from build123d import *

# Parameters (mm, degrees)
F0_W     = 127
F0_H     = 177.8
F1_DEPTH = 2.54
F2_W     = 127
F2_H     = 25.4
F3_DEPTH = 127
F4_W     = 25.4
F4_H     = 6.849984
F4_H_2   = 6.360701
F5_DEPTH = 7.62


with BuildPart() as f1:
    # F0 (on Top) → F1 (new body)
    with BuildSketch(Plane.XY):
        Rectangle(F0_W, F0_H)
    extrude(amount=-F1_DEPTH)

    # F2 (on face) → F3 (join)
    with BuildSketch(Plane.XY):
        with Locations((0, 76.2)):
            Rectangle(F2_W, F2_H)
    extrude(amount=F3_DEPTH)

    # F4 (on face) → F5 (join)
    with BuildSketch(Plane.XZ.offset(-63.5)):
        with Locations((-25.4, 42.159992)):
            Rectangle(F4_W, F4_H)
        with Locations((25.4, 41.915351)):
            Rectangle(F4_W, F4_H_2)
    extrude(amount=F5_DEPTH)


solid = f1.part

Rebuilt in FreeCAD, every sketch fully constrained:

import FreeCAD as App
import Part
import Sketcher
Q = App.Units.Quantity


def add_polygon(sketch, points):
    """Adds a closed chain of lines whose ends are joined by coincident constraints."""
    first, n = sketch.GeometryCount, len(points)
    for a, b in zip(points, points[1:] + points[:1]):
        sketch.addGeometry(Part.LineSegment(App.Vector(*a, 0), App.Vector(*b, 0)), False)
    for i in range(n):
        sketch.addConstraint(Sketcher.Constraint("Coincident", first + i, 2, first + (i + 1) % n, 1))

doc = App.newDocument("Part")
body = doc.addObject("PartDesign::Body", "Body")

# Sketch on XY plane
sketch1 = body.newObject("Sketcher::SketchObject", "Sketch")
sketch1.AttachmentSupport = (doc.getObject("XY_Plane"), [""])
sketch1.MapMode = "FlatFace"
add_polygon(sketch1, [(-64, 89), (-64, -89), (64, -89), (64, 89)])  # lines 0-3
sketch1.addConstraint(Sketcher.Constraint("Vertical", 0))
sketch1.addConstraint(Sketcher.Constraint("Horizontal", 1))
sketch1.addConstraint(Sketcher.Constraint("Vertical", 2))
sketch1.addConstraint(Sketcher.Constraint("Horizontal", 3))
sketch1.addConstraint(Sketcher.Constraint("Symmetric", 0, 2, 2, 2, -1, 1))
sketch1.addConstraint(Sketcher.Constraint("DistanceX", 1, 1, 1, 2, Q("5 in")))
sketch1.addConstraint(Sketcher.Constraint("DistanceY", 0, 2, 0, 1, Q("7 in")))
pad1 = body.newObject("PartDesign::Pad", "Pad")
pad1.Profile = sketch1
pad1.Length = Q("0.1 in")
pad1.Reversed = True

# Sketch on XY plane
sketch2 = body.newObject("Sketcher::SketchObject", "Sketch001")
sketch2.AttachmentSupport = (doc.getObject("XY_Plane"), [""])
sketch2.MapMode = "FlatFace"
add_polygon(sketch2, [(-64, 89), (-64, 64), (64, 64), (64, 89)])  # lines 0-3
sketch2.addConstraint(Sketcher.Constraint("Vertical", 0))
sketch2.addConstraint(Sketcher.Constraint("Horizontal", 1))
sketch2.addConstraint(Sketcher.Constraint("Vertical", 2))
sketch2.addConstraint(Sketcher.Constraint("Horizontal", 3))
sketch2.addConstraint(Sketcher.Constraint("DistanceX", 1, 1, 1, 2, Q("5 in")))
sketch2.addConstraint(Sketcher.Constraint("DistanceY", 0, 2, 0, 1, Q("1 in")))
sketch2.addConstraint(Sketcher.Constraint("DistanceX", 0, 2, -1, 1, Q("2.5 in")))
sketch2.addConstraint(Sketcher.Constraint("DistanceY", -1, 1, 0, 2, Q("2.5 in")))
pad2 = body.newObject("PartDesign::Pad", "Pad001")
pad2.Profile = sketch2
pad2.Length = Q("5 in")

# Sketch on XZ plane
sketch3 = body.newObject("Sketcher::SketchObject", "Sketch002")
sketch3.AttachmentSupport = (doc.getObject("XZ_Plane"), [""])
sketch3.MapMode = "FlatFace"
sketch3.AttachmentOffset = App.Placement(App.Vector(0, 0, -2.5 * 25.4), App.Rotation())
add_polygon(sketch3, [(-38, 46), (-38, 39), (-13, 39), (-13, 46)])  # lines 0-3
add_polygon(sketch3, [(13, 45), (13, 39), (38, 39), (38, 45)])  # lines 4-7
sketch3.addConstraint(Sketcher.Constraint("Vertical", 0))
sketch3.addConstraint(Sketcher.Constraint("Horizontal", 1))
sketch3.addConstraint(Sketcher.Constraint("Vertical", 2))
sketch3.addConstraint(Sketcher.Constraint("Horizontal", 3))
sketch3.addConstraint(Sketcher.Constraint("Vertical", 4))
sketch3.addConstraint(Sketcher.Constraint("Horizontal", 5))
sketch3.addConstraint(Sketcher.Constraint("Vertical", 6))
sketch3.addConstraint(Sketcher.Constraint("Horizontal", 7))
sketch3.addConstraint(Sketcher.Constraint("Symmetric", 1, 2, 4, 2, -2))
sketch3.addConstraint(Sketcher.Constraint("Equal", 3, 5))
sketch3.addConstraint(Sketcher.Constraint("DistanceX", 1, 1, 1, 2, Q("1 in")))
sketch3.addConstraint(Sketcher.Constraint("DistanceX", 1, 2, 4, 2, Q("1 in")))
sketch3.addConstraint(Sketcher.Constraint("DistanceY", -1, 1, 0, 2, Q("1.525 in")))
sketch3.addConstraint(Sketcher.Constraint("DistanceY", 4, 2, 4, 1, 6.360701))
sketch3.addConstraint(Sketcher.Constraint("DistanceY", 0, 2, 0, 1, 6.849984))
pad3 = body.newObject("PartDesign::Pad", "Pad002")
pad3.Profile = sketch3
pad3.Length = Q("0.3 in")

doc.recompute()
